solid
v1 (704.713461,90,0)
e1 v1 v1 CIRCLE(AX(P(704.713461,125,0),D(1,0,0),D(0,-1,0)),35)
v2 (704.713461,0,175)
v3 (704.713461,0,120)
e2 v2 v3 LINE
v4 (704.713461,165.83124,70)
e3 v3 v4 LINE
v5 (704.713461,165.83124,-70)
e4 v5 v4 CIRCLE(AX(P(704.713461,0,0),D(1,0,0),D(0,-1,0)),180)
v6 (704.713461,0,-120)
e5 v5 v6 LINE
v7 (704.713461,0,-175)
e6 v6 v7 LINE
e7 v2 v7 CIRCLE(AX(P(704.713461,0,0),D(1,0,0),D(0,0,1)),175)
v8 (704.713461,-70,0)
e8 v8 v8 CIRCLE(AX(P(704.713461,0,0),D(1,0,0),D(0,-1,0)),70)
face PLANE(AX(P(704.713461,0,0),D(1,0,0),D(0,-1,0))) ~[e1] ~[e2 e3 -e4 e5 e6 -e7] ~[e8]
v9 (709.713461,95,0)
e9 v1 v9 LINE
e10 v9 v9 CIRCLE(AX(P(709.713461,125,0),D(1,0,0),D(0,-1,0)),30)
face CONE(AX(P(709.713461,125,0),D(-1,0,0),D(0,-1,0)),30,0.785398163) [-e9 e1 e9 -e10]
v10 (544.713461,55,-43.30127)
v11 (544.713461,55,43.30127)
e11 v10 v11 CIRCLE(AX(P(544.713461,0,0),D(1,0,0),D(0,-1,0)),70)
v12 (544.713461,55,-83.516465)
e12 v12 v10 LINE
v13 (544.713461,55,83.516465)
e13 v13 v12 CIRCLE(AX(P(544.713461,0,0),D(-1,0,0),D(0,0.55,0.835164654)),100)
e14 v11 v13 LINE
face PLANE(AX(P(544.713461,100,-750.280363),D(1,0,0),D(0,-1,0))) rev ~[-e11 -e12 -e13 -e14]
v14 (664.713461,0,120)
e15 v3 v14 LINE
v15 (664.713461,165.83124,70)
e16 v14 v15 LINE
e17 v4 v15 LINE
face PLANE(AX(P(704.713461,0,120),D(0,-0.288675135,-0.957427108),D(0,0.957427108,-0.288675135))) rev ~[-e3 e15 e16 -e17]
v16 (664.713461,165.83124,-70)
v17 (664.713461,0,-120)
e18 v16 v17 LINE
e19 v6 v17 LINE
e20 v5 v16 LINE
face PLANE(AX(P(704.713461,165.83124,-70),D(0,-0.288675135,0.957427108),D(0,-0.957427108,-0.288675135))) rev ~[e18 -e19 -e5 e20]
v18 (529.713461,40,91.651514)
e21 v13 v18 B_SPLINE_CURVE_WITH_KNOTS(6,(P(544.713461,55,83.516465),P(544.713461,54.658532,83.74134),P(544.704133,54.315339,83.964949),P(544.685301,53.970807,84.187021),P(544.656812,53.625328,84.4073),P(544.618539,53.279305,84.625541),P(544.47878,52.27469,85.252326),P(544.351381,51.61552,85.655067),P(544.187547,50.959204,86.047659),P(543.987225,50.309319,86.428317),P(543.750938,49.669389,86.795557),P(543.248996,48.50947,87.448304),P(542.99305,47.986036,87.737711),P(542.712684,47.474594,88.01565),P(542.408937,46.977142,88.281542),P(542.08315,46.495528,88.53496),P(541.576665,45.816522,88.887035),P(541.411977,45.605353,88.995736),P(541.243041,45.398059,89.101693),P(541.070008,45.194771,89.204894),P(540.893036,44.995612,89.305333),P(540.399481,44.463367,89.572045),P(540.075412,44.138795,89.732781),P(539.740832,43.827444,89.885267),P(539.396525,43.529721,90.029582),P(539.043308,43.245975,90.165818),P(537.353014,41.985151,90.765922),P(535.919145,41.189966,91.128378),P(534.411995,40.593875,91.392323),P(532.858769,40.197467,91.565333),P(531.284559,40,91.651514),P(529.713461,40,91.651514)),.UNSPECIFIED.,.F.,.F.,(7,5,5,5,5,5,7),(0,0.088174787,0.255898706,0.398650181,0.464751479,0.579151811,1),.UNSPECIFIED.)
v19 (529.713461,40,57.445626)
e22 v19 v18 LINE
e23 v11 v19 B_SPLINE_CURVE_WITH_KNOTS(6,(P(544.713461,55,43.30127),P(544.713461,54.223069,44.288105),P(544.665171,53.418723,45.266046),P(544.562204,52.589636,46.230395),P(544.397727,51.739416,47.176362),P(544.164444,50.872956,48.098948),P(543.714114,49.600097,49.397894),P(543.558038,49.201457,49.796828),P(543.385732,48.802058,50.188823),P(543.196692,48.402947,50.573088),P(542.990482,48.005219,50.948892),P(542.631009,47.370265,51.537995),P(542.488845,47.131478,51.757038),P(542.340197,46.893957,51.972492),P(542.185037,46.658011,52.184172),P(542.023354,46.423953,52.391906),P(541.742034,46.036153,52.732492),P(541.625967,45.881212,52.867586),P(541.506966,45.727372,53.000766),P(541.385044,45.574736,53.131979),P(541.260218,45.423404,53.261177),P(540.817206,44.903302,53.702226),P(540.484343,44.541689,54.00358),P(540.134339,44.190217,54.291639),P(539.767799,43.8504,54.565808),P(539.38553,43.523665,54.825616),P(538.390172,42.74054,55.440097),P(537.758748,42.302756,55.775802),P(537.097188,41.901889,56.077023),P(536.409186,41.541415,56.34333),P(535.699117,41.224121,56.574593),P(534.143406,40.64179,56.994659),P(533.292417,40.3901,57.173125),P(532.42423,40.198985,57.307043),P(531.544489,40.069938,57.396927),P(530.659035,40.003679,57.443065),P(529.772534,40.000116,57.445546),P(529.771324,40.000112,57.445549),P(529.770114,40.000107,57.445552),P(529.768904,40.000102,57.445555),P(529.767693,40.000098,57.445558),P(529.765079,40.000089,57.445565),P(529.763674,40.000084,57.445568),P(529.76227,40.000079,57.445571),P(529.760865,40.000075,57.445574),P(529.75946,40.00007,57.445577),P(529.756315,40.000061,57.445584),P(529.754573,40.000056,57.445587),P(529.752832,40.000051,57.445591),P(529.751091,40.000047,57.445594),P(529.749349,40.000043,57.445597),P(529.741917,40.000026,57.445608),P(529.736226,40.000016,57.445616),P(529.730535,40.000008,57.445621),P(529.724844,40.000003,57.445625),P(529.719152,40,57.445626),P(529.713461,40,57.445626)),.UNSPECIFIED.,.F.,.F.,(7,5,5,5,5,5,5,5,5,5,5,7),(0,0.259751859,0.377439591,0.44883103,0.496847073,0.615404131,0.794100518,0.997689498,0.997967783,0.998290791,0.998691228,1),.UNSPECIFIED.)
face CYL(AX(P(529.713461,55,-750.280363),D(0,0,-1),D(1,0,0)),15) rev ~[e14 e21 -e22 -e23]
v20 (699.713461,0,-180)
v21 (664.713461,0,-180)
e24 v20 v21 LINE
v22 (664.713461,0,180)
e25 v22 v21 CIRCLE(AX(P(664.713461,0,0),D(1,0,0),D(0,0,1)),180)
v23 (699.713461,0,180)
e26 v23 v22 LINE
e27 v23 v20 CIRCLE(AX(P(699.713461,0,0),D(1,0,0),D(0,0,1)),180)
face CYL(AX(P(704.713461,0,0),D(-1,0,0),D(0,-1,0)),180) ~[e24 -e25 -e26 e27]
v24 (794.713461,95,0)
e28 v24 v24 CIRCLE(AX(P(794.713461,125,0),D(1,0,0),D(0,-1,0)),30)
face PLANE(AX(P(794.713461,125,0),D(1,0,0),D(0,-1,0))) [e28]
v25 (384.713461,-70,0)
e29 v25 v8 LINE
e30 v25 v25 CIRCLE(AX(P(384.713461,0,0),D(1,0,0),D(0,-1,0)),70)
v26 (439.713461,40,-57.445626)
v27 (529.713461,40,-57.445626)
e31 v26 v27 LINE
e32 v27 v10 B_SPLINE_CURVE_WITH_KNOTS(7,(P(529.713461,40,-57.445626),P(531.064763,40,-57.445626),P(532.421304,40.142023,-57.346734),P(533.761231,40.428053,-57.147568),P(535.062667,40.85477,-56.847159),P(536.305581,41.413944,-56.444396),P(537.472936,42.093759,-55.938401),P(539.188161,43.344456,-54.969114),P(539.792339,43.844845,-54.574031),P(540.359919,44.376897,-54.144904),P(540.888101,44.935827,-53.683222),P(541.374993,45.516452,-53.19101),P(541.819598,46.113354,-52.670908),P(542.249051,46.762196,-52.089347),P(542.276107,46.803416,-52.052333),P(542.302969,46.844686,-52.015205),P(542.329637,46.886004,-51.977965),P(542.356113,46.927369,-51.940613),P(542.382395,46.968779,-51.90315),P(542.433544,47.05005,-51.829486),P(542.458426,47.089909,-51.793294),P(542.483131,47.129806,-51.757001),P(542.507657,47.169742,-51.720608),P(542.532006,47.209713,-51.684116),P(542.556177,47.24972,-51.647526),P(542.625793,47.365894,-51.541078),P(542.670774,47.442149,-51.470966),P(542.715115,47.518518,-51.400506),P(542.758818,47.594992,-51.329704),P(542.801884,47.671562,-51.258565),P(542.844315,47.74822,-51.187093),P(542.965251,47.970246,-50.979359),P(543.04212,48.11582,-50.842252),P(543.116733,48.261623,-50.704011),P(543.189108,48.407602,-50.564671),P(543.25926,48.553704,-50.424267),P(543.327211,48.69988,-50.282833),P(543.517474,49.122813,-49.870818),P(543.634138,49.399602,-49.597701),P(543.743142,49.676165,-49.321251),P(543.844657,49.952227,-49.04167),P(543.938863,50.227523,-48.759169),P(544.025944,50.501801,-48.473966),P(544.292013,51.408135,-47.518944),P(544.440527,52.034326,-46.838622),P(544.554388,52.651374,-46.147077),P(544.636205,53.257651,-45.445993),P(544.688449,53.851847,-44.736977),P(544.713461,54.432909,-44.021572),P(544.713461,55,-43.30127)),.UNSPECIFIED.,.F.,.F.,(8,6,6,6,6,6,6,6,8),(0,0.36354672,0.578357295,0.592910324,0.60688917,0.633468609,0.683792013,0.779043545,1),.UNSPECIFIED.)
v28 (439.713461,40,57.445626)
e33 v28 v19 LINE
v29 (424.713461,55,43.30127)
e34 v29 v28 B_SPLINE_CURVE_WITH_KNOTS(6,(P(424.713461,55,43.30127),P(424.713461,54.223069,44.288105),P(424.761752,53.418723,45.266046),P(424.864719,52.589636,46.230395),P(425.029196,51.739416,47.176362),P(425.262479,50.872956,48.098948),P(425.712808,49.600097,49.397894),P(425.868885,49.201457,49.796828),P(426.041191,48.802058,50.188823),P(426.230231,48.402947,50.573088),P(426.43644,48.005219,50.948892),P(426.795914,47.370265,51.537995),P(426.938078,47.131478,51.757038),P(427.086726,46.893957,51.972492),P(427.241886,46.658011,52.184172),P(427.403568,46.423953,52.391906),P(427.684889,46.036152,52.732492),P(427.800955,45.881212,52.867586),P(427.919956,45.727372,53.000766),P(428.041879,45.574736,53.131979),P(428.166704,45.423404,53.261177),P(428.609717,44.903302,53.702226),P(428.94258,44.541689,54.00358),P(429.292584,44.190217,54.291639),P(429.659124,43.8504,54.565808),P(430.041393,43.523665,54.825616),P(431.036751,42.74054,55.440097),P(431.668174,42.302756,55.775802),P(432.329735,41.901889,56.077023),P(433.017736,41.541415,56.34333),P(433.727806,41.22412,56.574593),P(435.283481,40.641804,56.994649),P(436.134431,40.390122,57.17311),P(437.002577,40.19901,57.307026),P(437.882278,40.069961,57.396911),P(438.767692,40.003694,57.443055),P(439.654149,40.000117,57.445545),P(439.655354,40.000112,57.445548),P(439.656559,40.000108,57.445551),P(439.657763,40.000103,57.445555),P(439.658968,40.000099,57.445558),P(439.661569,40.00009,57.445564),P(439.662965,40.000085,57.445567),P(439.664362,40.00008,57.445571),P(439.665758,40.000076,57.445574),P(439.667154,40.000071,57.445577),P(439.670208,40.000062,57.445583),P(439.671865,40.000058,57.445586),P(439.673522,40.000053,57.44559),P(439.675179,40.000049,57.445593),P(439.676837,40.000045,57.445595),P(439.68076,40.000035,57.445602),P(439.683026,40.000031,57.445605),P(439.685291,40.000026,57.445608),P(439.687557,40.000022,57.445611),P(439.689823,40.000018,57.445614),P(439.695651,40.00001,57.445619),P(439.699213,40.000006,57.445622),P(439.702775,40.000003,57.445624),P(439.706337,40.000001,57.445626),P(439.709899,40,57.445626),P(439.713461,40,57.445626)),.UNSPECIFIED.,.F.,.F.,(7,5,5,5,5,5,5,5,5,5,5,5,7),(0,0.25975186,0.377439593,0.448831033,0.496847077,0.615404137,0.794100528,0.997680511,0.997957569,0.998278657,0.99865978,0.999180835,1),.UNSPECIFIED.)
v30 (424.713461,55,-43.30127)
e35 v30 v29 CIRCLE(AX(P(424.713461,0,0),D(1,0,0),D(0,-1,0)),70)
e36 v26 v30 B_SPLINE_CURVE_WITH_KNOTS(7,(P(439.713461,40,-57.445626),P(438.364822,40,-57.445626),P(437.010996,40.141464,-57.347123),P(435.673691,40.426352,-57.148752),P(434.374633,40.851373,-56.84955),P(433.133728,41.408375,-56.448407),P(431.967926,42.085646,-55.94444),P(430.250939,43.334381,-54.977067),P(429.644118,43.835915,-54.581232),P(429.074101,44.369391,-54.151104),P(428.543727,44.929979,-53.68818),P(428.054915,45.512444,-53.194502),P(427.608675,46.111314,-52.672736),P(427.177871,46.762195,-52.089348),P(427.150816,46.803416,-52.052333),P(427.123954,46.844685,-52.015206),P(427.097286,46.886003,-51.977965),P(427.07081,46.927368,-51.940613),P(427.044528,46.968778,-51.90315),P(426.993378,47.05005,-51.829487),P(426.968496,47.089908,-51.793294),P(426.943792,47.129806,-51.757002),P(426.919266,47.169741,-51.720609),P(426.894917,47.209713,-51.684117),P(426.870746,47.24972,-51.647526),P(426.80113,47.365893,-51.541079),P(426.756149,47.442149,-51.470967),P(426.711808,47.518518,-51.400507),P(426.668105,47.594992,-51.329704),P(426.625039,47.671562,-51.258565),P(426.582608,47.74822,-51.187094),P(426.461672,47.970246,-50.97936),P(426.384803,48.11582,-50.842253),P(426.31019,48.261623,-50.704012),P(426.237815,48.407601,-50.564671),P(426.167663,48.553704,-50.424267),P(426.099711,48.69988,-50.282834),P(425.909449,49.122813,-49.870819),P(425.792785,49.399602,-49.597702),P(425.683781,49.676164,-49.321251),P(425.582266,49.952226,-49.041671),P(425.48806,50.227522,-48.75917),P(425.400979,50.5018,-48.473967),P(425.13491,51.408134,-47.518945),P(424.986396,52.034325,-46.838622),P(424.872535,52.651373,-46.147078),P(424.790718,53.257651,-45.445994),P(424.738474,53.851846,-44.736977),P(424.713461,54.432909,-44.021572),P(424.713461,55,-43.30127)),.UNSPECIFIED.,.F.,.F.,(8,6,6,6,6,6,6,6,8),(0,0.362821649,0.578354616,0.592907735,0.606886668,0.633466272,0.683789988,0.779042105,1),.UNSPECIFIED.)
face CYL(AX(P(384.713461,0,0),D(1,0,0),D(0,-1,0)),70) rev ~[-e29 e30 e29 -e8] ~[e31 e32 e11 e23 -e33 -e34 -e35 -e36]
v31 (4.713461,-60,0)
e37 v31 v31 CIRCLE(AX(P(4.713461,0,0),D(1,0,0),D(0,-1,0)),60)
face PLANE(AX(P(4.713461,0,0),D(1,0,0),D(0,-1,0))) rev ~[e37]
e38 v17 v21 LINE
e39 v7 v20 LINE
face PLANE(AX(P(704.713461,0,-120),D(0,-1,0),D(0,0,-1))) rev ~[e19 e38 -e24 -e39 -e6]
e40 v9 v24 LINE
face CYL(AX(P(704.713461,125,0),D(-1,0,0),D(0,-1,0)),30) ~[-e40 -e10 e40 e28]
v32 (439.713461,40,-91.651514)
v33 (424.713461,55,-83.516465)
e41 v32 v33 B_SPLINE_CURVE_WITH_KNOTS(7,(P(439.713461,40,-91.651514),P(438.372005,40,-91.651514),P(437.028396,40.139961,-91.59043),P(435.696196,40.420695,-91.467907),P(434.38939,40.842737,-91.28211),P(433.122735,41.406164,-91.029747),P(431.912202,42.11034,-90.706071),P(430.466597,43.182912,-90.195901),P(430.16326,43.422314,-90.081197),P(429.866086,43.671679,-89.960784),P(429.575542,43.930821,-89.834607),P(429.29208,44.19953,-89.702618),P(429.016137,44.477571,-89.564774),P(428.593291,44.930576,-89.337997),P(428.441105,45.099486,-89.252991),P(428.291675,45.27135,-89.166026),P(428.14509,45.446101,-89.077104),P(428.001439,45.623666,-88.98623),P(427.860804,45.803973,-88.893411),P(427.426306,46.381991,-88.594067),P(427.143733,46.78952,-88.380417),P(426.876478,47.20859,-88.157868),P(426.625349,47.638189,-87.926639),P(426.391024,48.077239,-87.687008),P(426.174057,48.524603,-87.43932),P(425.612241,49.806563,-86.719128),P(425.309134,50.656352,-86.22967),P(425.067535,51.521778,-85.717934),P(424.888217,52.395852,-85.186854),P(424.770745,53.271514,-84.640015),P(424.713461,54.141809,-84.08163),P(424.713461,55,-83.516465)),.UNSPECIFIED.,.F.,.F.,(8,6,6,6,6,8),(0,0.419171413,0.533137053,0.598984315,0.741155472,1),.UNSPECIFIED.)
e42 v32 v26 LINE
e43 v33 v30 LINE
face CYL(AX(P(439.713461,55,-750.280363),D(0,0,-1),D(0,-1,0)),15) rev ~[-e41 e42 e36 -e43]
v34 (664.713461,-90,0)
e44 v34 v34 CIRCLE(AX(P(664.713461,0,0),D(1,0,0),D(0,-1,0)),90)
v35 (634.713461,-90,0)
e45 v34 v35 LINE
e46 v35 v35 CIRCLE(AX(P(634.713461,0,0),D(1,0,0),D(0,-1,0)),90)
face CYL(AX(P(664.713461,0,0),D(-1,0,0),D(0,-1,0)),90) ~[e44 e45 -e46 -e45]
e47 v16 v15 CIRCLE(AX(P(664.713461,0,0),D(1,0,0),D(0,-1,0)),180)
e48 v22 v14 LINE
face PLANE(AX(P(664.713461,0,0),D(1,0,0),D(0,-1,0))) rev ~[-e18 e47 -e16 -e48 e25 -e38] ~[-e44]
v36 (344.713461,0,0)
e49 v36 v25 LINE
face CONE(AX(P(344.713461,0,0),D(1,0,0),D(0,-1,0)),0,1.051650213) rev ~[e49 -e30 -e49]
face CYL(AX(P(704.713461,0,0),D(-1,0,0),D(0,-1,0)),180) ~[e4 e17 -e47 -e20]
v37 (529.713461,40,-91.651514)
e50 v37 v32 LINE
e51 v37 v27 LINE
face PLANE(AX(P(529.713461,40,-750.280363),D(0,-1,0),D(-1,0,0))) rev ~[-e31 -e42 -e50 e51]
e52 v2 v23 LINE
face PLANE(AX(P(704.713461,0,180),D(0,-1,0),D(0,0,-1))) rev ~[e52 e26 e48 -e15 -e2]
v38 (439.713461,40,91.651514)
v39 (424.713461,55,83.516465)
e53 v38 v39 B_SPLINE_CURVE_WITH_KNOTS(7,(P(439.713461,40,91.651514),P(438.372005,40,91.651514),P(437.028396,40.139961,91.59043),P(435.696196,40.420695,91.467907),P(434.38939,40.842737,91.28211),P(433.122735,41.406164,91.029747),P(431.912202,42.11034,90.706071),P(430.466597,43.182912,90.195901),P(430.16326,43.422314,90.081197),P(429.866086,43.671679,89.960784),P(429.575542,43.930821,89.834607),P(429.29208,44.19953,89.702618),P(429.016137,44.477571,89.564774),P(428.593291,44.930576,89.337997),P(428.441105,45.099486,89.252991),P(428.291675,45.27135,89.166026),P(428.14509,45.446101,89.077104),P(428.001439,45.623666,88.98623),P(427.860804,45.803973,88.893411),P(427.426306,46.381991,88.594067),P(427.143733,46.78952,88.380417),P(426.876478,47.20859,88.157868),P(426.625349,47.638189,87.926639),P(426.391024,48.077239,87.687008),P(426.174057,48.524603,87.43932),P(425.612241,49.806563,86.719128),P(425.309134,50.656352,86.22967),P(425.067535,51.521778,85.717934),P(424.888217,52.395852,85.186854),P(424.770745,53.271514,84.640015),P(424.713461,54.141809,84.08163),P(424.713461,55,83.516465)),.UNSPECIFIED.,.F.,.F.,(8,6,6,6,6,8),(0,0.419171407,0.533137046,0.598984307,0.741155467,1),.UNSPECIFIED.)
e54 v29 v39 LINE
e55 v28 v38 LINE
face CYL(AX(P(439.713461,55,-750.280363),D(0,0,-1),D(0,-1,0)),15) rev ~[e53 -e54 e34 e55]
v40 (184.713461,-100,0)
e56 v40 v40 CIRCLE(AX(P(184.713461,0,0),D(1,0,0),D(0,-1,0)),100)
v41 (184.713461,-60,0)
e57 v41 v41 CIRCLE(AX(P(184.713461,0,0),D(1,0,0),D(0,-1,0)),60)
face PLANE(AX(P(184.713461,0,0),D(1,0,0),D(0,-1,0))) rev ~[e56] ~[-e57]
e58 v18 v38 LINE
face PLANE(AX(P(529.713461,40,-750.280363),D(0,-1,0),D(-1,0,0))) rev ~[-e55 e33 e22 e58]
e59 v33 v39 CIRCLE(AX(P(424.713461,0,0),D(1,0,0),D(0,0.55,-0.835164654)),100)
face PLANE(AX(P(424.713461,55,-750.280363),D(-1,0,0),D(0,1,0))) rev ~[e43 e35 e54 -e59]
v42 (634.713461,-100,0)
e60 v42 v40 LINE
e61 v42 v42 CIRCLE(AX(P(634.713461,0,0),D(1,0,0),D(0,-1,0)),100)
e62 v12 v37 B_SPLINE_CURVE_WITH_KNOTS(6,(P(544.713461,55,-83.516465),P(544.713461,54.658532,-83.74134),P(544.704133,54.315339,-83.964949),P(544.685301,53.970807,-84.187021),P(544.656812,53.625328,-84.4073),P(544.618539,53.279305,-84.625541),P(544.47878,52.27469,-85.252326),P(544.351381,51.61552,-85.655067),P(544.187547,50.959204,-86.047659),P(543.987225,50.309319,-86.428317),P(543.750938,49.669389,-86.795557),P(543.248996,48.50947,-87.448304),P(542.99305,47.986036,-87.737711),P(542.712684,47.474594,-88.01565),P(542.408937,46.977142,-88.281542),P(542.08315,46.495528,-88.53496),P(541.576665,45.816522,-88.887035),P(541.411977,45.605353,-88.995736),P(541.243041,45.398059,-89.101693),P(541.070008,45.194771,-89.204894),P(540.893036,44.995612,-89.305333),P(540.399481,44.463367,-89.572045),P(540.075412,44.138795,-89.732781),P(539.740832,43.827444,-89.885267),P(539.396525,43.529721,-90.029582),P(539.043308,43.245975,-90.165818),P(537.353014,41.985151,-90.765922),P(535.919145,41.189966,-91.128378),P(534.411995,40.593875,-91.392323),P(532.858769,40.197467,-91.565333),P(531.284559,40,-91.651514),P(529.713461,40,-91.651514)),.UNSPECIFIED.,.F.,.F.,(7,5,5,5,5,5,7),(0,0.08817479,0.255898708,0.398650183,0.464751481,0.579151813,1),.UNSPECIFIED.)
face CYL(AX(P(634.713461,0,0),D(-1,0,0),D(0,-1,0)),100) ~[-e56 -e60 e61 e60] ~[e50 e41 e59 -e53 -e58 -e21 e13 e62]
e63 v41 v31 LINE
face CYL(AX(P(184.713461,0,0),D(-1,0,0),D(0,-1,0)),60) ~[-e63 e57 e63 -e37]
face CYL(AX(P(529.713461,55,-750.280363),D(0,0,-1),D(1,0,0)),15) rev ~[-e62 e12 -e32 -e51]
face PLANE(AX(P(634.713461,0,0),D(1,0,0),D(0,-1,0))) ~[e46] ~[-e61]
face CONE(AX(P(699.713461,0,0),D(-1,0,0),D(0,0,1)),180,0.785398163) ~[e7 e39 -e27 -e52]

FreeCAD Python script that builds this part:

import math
import FreeCAD as App
import Part
import Sketcher
from FreeCAD import Vector


def edges_at(feature, points):
    """Names of the edges that pass closest to the given points."""
    edges = feature.Shape.Edges
    near = lambda p: min(range(len(edges)), key=lambda i: edges[i].distToShape(Part.Vertex(*p))[0])
    return sorted({f"Edge{near(p) + 1}" for p in points})


def add_polygon(sketch, points):
    """Adds a closed chain of lines whose ends are joined by coincident constraints."""
    first, n = sketch.GeometryCount, len(points)
    for a, b in zip(points, points[1:] + points[:1]):
        sketch.addGeometry(Part.LineSegment(App.Vector(*a, 0), App.Vector(*b, 0)), False)
    for i in range(n):
        sketch.addConstraint(Sketcher.Constraint("Coincident", first + i, 2, first + (i + 1) % n, 1))

doc = App.newDocument("Part")
body = doc.addObject("PartDesign::Body", "Body")

sketch1 = doc.addObject("Sketcher::SketchObject", "Sketch")
body.addObject(sketch1)
sketch1.AttachmentSupport = (doc.XY_Plane, [""])
sketch1.MapMode = "FlatFace"
add_polygon(sketch1, [(5, 0), (345, 0), (385, 70), (705, 70), (705, 180), (665, 180), (665, 90), (635, 90), (635, 100), (185, 100), (185, 60), (5, 60)])
sketch1.addConstraint([
    Sketcher.Constraint("Horizontal", 0),
    Sketcher.Constraint("Horizontal", 2),
    Sketcher.Constraint("Vertical", 3),
    Sketcher.Constraint("Horizontal", 4),
    Sketcher.Constraint("Vertical", 5),
    Sketcher.Constraint("Horizontal", 6),
    Sketcher.Constraint("Vertical", 7),
    Sketcher.Constraint("Horizontal", 8),
    Sketcher.Constraint("Vertical", 9),
    Sketcher.Constraint("Horizontal", 10),
    Sketcher.Constraint("Vertical", 11),
    Sketcher.Constraint("PointOnObject", 0, 2, -1),
    Sketcher.Constraint("Equal", 4, 9),
    Sketcher.Constraint("DistanceX", 0, 1, 0, 2, 340.0),
    Sketcher.Constraint("DistanceX", 2, 1, 2, 2, 320.0),
    Sketcher.Constraint("DistanceX", 4, 2, 4, 1, 40.0),
    Sketcher.Constraint("DistanceX", 6, 2, 6, 1, 30.0),
    Sketcher.Constraint("DistanceX", 8, 2, 8, 1, 450.0),
    Sketcher.Constraint("DistanceX", 10, 2, 10, 1, 180.0),
    Sketcher.Constraint("DistanceY", 3, 1, 3, 2, 110.0),
    Sketcher.Constraint("DistanceY", 5, 2, 5, 1, 90.0),
    Sketcher.Constraint("DistanceY", 7, 1, 7, 2, 10.0),
    Sketcher.Constraint("DistanceY", 11, 2, 11, 1, 60.0),
    Sketcher.Constraint("DistanceX", -1, 1, 0, 2, 344.713461),
])
revolution = doc.addObject("PartDesign::Revolution", "Revolution")
body.addObject(revolution)
revolution.Profile = sketch1
revolution.ReferenceAxis = (sketch1, ["H_Axis"])
revolution.Angle = 360

sketch2 = doc.addObject("Sketcher::SketchObject", "Sketch001")
body.addObject(sketch2)
sketch2.AttachmentSupport = (doc.XY_Plane, [""])
sketch2.MapMode = "FlatFace"
sketch2.addGeometry([
    Part.LineSegment(Vector(545, 100, 0), Vector(425, 100, 0)),
    Part.LineSegment(Vector(425, 100, 0), Vector(425, 55, 0)),
    Part.ArcOfCircle(Part.Circle(Vector(440, 55, 0), Vector(0, 0, 1), 15), math.radians(180), math.radians(270)),
    Part.LineSegment(Vector(440, 40, 0), Vector(530, 40, 0)),
    Part.ArcOfCircle(Part.Circle(Vector(530, 55, 0), Vector(0, 0, 1), 15), math.radians(-90), math.radians(0)),
    Part.LineSegment(Vector(545, 55, 0), Vector(545, 100, 0)),
], False)
sketch2.addConstraint([
    Sketcher.Constraint("Coincident", 0, 2, 1, 1),
    Sketcher.Constraint("Tangent", 1, 2, 2, 1),
    Sketcher.Constraint("Tangent", 2, 2, 3, 1),
    Sketcher.Constraint("Tangent", 3, 2, 4, 1),
    Sketcher.Constraint("Tangent", 4, 2, 5, 1),
    Sketcher.Constraint("Coincident", 5, 2, 0, 1),
    Sketcher.Constraint("Horizontal", 0),
    Sketcher.Constraint("Vertical", 1),
    Sketcher.Constraint("Horizontal", 3),
    Sketcher.Constraint("Vertical", 5),
    Sketcher.Constraint("Equal", 2, 4),
    Sketcher.Constraint("Radius", 2, 15.0),
    Sketcher.Constraint("DistanceX", 0, 2, 0, 1, 120.0),
    Sketcher.Constraint("DistanceY", 1, 2, 1, 1, 45.0),
    Sketcher.Constraint("DistanceY", -1, 1, 2, 3, 55.0),
    Sketcher.Constraint("DistanceX", -1, 1, 2, 3, 439.713461),
])
pocket1 = doc.addObject("PartDesign::Pocket", "Pocket")
body.addObject(pocket1)
pocket1.Profile = sketch2
pocket1.Type = "ThroughAll"
pocket1.Midplane = True

sketch3 = doc.addObject("Sketcher::SketchObject", "Sketch002")
body.addObject(sketch3)
sketch3.AttachmentSupport = (doc.YZ_Plane, [""])
sketch3.MapMode = "FlatFace"
sketch3.AttachmentOffset = App.Placement(Vector(0, 0, 704.713461), App.Rotation())
sketch3.addGeometry([
    Part.LineSegment(Vector(0, 120, 0), Vector(166, 70, 0)),
    Part.ArcOfCircle(Part.Circle(Vector(0, 0, 0), Vector(0, 0, 1), 180), math.radians(23), math.radians(90)),
    Part.LineSegment(Vector(0, 180, 0), Vector(0, 120, 0)),
    Part.ArcOfCircle(Part.Circle(Vector(0, 0, 0), Vector(0, 0, 1), 180), math.radians(-90), math.radians(-23)),
    Part.LineSegment(Vector(166, -70, 0), Vector(0, -120, 0)),
    Part.LineSegment(Vector(0, -120, 0), Vector(0, -180, 0)),
], False)
sketch3.addConstraint([
    Sketcher.Constraint("Coincident", 0, 2, 1, 1),
    Sketcher.Constraint("Coincident", 1, 2, 2, 1),
    Sketcher.Constraint("Coincident", 2, 2, 0, 1),
    Sketcher.Constraint("Coincident", 3, 2, 4, 1),
    Sketcher.Constraint("Coincident", 4, 2, 5, 1),
    Sketcher.Constraint("Coincident", 5, 2, 3, 1),
    Sketcher.Constraint("Vertical", 2),
    Sketcher.Constraint("Vertical", 5),
    Sketcher.Constraint("Coincident", 1, 3, -1, 1),
    Sketcher.Constraint("Coincident", 3, 3, -1, 1),
    Sketcher.Constraint("Equal", 1, 3),
    Sketcher.Constraint("Symmetric", 2, 2, 4, 2, -1, 1),
    Sketcher.Constraint("PointOnObject", 1, 2, -2),
    Sketcher.Constraint("Vertical", 0, 2, 3, 2),
    Sketcher.Constraint("Radius", 1, 180.0),
    Sketcher.Constraint("DistanceY", 2, 2, 2, 1, 60.0),
    Sketcher.Constraint("DistanceY", -1, 1, 0, 2, 70.0),
])
pocket2 = doc.addObject("PartDesign::Pocket", "Pocket001")
body.addObject(pocket2)
pocket2.Profile = sketch3
pocket2.Type = "ThroughAll"

sketch4 = doc.addObject("Sketcher::SketchObject", "Sketch003")
body.addObject(sketch4)
sketch4.AttachmentSupport = (doc.YZ_Plane, [""])
sketch4.MapMode = "FlatFace"
sketch4.AttachmentOffset = App.Placement(Vector(0, 0, 704.713461), App.Rotation())
sketch4.addGeometry(Part.Circle(Vector(125, 0, 0), Vector(0, 0, 1), 30), False)
sketch4.addConstraint([
    Sketcher.Constraint("PointOnObject", 0, 3, -1),
    Sketcher.Constraint("Diameter", 0, 60.0),
    Sketcher.Constraint("DistanceX", -1, 1, 0, 3, 125.0),
])
pad1 = doc.addObject("PartDesign::Pad", "Pad")
body.addObject(pad1)
pad1.Profile = sketch4
pad1.Length = 90
doc.recompute()

chamfer = doc.addObject("PartDesign::Chamfer", "Chamfer")
body.addObject(chamfer)
chamfer.Base = (pad1, edges_at(pad1, [(704.713, 155, 0), (704.713, -180, 0)]))
chamfer.Size = 5

doc.recompute()
